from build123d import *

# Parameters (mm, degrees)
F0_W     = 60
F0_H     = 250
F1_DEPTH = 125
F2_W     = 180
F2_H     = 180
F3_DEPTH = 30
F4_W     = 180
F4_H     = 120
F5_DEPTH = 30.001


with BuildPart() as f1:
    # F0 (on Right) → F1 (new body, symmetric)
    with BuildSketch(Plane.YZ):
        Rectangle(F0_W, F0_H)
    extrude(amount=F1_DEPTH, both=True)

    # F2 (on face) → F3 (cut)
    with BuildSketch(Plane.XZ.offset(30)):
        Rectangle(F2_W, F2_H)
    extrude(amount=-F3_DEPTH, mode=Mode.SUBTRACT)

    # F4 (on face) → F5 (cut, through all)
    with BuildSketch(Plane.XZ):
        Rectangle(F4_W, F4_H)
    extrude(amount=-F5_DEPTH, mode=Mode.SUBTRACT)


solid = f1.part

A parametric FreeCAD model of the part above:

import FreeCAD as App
import Part
import Sketcher


def add_polygon(sketch, points):
    """Adds a closed chain of lines whose ends are joined by coincident constraints."""
    first, n = sketch.GeometryCount, len(points)
    for a, b in zip(points, points[1:] + points[:1]):
        sketch.addGeometry(Part.LineSegment(App.Vector(*a, 0), App.Vector(*b, 0)), False)
    for i in range(n):
        sketch.addConstraint(Sketcher.Constraint("Coincident", first + i, 2, first + (i + 1) % n, 1))

doc = App.newDocument("Part")
body = doc.addObject("PartDesign::Body", "Body")

# Sketch on YZ plane
sketch1 = doc.addObject("Sketcher::SketchObject", "Sketch")
body.addObject(sketch1)
sketch1.AttachmentSupport = (doc.YZ_Plane, [""])
sketch1.MapMode = "FlatFace"
add_polygon(sketch1, [(-30, 125), (-30, -125), (30, -125), (30, 125)])  # lines 0-3
sketch1.addConstraint(Sketcher.Constraint("Vertical", 0))
sketch1.addConstraint(Sketcher.Constraint("Horizontal", 1))
sketch1.addConstraint(Sketcher.Constraint("Vertical", 2))
sketch1.addConstraint(Sketcher.Constraint("Horizontal", 3))
sketch1.addConstraint(Sketcher.Constraint("Symmetric", 0, 2, 2, 2, -1, 1))
sketch1.addConstraint(Sketcher.Constraint("DistanceX", 1, 1, 1, 2, 60.0))
sketch1.addConstraint(Sketcher.Constraint("DistanceY", 0, 2, 0, 1, 250.0))
pad1 = doc.addObject("PartDesign::Pad", "Pad")
body.addObject(pad1)
pad1.Profile = sketch1
pad1.Length = 250
pad1.Midplane = True

# Sketch on XZ plane
sketch2 = doc.addObject("Sketcher::SketchObject", "Sketch001")
body.addObject(sketch2)
sketch2.AttachmentSupport = (doc.XZ_Plane, [""])
sketch2.MapMode = "FlatFace"
sketch2.AttachmentOffset = App.Placement(App.Vector(0, 0, 30), App.Rotation())
add_polygon(sketch2, [(-90, 90), (-90, -90), (90, -90), (90, 90)])  # lines 0-3
sketch2.addConstraint(Sketcher.Constraint("Vertical", 0))
sketch2.addConstraint(Sketcher.Constraint("Horizontal", 1))
sketch2.addConstraint(Sketcher.Constraint("Vertical", 2))
sketch2.addConstraint(Sketcher.Constraint("Horizontal", 3))
sketch2.addConstraint(Sketcher.Constraint("Symmetric", 0, 2, 2, 2, -1, 1))
sketch2.addConstraint(Sketcher.Constraint("Equal", 3, 0))
sketch2.addConstraint(Sketcher.Constraint("DistanceX", 1, 1, 1, 2, 180.0))
pocket1 = doc.addObject("PartDesign::Pocket", "Pocket")
body.addObject(pocket1)
pocket1.Profile = sketch2
pocket1.Length = 30

# Sketch on XZ plane
sketch3 = doc.addObject("Sketcher::SketchObject", "Sketch002")
body.addObject(sketch3)
sketch3.AttachmentSupport = (doc.XZ_Plane, [""])
sketch3.MapMode = "FlatFace"
add_polygon(sketch3, [(-90, 60), (-90, -60), (90, -60), (90, 60)])  # lines 0-3
sketch3.addConstraint(Sketcher.Constraint("Vertical", 0))
sketch3.addConstraint(Sketcher.Constraint("Horizontal", 1))
sketch3.addConstraint(Sketcher.Constraint("Vertical", 2))
sketch3.addConstraint(Sketcher.Constraint("Horizontal", 3))
sketch3.addConstraint(Sketcher.Constraint("Symmetric", 0, 2, 2, 2, -1, 1))
sketch3.addConstraint(Sketcher.Constraint("DistanceX", 1, 1, 1, 2, 180.0))
sketch3.addConstraint(Sketcher.Constraint("DistanceY", 0, 2, 0, 1, 120.0))
pocket2 = doc.addObject("PartDesign::Pocket", "Pocket001")
body.addObject(pocket2)
pocket2.Profile = sketch3
pocket2.Type = "ThroughAll"

doc.recompute()
